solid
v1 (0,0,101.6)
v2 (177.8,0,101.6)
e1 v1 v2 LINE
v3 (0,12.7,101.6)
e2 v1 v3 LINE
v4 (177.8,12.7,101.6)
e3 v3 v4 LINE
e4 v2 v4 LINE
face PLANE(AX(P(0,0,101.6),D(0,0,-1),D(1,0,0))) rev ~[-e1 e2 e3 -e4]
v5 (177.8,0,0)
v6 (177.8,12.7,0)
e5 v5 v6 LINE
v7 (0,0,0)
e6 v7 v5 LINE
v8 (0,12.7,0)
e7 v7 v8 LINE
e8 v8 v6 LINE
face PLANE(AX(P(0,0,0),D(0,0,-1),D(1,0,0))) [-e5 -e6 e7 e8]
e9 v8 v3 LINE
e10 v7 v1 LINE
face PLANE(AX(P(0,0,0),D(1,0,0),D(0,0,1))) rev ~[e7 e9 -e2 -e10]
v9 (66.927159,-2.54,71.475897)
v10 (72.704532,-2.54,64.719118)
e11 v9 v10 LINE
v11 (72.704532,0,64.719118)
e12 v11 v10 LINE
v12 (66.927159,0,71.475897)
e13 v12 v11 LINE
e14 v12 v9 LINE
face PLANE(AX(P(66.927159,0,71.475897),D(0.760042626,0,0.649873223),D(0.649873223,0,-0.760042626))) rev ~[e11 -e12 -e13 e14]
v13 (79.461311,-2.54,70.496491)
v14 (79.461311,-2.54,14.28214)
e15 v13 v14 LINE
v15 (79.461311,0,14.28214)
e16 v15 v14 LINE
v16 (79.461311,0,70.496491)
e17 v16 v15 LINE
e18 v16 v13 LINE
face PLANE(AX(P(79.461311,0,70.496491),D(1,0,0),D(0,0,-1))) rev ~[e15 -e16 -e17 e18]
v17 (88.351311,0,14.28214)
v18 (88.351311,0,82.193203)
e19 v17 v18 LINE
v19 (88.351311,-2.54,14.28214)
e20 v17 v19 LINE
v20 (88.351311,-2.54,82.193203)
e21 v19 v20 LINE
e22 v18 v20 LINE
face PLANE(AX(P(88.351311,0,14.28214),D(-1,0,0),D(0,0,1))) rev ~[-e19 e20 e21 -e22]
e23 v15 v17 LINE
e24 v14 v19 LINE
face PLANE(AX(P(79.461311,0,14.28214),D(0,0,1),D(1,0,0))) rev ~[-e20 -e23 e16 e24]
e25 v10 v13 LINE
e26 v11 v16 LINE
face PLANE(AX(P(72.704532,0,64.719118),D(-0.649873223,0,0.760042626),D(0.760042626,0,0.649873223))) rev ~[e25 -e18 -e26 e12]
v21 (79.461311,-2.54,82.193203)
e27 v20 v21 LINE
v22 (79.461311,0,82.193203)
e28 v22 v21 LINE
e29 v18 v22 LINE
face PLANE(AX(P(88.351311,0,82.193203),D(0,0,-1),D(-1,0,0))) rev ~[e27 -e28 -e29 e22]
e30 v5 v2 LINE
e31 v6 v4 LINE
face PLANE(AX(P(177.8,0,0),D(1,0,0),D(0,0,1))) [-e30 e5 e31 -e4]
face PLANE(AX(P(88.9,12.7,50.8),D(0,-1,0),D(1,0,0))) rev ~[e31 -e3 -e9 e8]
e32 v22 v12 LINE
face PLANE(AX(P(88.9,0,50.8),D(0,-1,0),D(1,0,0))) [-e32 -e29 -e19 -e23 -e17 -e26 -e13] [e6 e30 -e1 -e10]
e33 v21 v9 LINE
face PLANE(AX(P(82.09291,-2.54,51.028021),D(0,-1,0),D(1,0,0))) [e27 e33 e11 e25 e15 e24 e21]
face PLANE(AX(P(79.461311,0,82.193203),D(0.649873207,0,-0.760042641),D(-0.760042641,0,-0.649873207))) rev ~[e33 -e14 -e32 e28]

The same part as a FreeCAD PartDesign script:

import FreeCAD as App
import Part
import Sketcher
Q = App.Units.Quantity

doc = App.newDocument("Part")
body = doc.addObject("PartDesign::Body", "Body")

# Sketch on XZ plane
sketch1 = body.newObject("Sketcher::SketchObject", "Sketch")
sketch1.AttachmentSupport = (doc.getObject("XZ_Plane"), [""])
sketch1.MapMode = "FlatFace"
sketch1.addGeometry(Part.LineSegment(App.Vector(0, 102, 0), App.Vector(0, 0, 0)), False)
sketch1.addGeometry(Part.LineSegment(App.Vector(0, 0, 0), App.Vector(178, 0, 0)), False)
sketch1.addGeometry(Part.LineSegment(App.Vector(178, 0, 0), App.Vector(178, 102, 0)), False)
sketch1.addGeometry(Part.LineSegment(App.Vector(178, 102, 0), App.Vector(0, 102, 0)), False)
sketch1.addConstraint(Sketcher.Constraint("Coincident", 0, 2, 1, 1))
sketch1.addConstraint(Sketcher.Constraint("Coincident", 1, 2, 2, 1))
sketch1.addConstraint(Sketcher.Constraint("Coincident", 2, 2, 3, 1))
sketch1.addConstraint(Sketcher.Constraint("Coincident", 3, 2, 0, 1))
sketch1.addConstraint(Sketcher.Constraint("Vertical", 0))
sketch1.addConstraint(Sketcher.Constraint("Horizontal", 1))
sketch1.addConstraint(Sketcher.Constraint("Vertical", 2))
sketch1.addConstraint(Sketcher.Constraint("Horizontal", 3))
sketch1.addConstraint(Sketcher.Constraint("Coincident", 0, 2, -1, 1))
sketch1.addConstraint(Sketcher.Constraint("DistanceX", 1, 1, 1, 2, Q("7 in")))
sketch1.addConstraint(Sketcher.Constraint("DistanceY", 0, 2, 0, 1, Q("4 in")))
pad1 = body.newObject("PartDesign::Pad", "Pad")
pad1.Profile = sketch1
pad1.Length = Q("0.5 in")
pad1.Reversed = True

# Sketch on XZ plane
sketch2 = body.newObject("Sketcher::SketchObject", "Sketch001")
sketch2.AttachmentSupport = (doc.getObject("XZ_Plane"), [""])
sketch2.MapMode = "FlatFace"
sketch2.addGeometry(Part.LineSegment(App.Vector(88, 82, 0), App.Vector(79, 82, 0)), False)
sketch2.addGeometry(Part.LineSegment(App.Vector(79, 82, 0), App.Vector(67, 71, 0)), False)
sketch2.addGeometry(Part.LineSegment(App.Vector(67, 71, 0), App.Vector(73, 65, 0)), False)
sketch2.addGeometry(Part.LineSegment(App.Vector(73, 65, 0), App.Vector(79, 70, 0)), False)
sketch2.addGeometry(Part.LineSegment(App.Vector(79, 70, 0), App.Vector(79, 14, 0)), False)
sketch2.addGeometry(Part.LineSegment(App.Vector(79, 14, 0), App.Vector(88, 14, 0)), False)
sketch2.addGeometry(Part.LineSegment(App.Vector(88, 14, 0), App.Vector(88, 82, 0)), False)
sketch2.addConstraint(Sketcher.Constraint("Coincident", 0, 2, 1, 1))
sketch2.addConstraint(Sketcher.Constraint("Coincident", 1, 2, 2, 1))
sketch2.addConstraint(Sketcher.Constraint("Coincident", 2, 2, 3, 1))
sketch2.addConstraint(Sketcher.Constraint("Coincident", 3, 2, 4, 1))
sketch2.addConstraint(Sketcher.Constraint("Coincident", 4, 2, 5, 1))
sketch2.addConstraint(Sketcher.Constraint("Coincident", 5, 2, 6, 1))
sketch2.addConstraint(Sketcher.Constraint("Coincident", 6, 2, 0, 1))
sketch2.addConstraint(Sketcher.Constraint("Horizontal", 0))
sketch2.addConstraint(Sketcher.Constraint("Vertical", 4))
sketch2.addConstraint(Sketcher.Constraint("Horizontal", 5))
sketch2.addConstraint(Sketcher.Constraint("Vertical", 6))
sketch2.addConstraint(Sketcher.Constraint("Perpendicular", 1, 2))
sketch2.addConstraint(Sketcher.Constraint("Perpendicular", 2, 3))
sketch2.addConstraint(Sketcher.Constraint("Vertical", 0, 2, 3, 2))
sketch2.addConstraint(Sketcher.Constraint("Equal", 2, 3))
sketch2.addConstraint(Sketcher.Constraint("DistanceX", 0, 2, 0, 1, Q("0.35 in")))
sketch2.addConstraint(Sketcher.Constraint("Distance", 2, Q("0.35 in")))
sketch2.addConstraint(Sketcher.Constraint("DistanceY", 4, 2, 4, 1, 56.214351))
sketch2.addConstraint(Sketcher.Constraint("Distance", 1, 16.49138))
sketch2.addConstraint(Sketcher.Constraint("DistanceX", -1, 1, 0, 2, 79.461311))
sketch2.addConstraint(Sketcher.Constraint("DistanceY", -1, 1, 3, 2, 70.496491))
pad2 = body.newObject("PartDesign::Pad", "Pad001")
pad2.Profile = sketch2
pad2.Length = Q("0.1 in")

doc.recompute()
